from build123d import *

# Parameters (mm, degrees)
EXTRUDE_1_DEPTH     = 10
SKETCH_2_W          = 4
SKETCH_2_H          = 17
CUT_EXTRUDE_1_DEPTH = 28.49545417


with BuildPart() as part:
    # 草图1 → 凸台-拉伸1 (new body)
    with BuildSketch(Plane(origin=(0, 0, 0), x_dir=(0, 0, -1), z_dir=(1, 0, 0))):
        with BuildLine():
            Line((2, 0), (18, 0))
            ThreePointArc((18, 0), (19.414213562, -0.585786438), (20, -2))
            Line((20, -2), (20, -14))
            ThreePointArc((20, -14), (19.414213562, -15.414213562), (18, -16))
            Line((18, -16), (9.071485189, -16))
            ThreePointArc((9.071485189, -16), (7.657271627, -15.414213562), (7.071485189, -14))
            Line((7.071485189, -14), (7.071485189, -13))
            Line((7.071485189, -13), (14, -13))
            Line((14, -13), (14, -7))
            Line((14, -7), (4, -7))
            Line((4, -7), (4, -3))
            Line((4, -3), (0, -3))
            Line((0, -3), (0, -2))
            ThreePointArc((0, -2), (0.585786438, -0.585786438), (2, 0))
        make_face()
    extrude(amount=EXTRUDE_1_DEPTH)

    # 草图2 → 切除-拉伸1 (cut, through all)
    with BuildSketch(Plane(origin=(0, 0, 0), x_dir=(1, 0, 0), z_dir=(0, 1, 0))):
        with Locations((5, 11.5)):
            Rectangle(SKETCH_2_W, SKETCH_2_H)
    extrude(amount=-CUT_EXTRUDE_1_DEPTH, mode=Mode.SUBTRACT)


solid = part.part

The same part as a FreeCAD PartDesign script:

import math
import FreeCAD as App
import Part
import Sketcher
from FreeCAD import Vector
Q = App.Units.Quantity

doc = App.newDocument("Part")
params = doc.addObject("Spreadsheet::Sheet", "Params")
for row, (alias, value) in enumerate([
    ("sketch1_radius", "2 mm"),
    ("sketch1_width", "1 mm"),
    ("sketch1_width2", "4 mm"),
    ("sketch1_width3", "6 mm"),
    ("sketch1_height", "16 mm"),
    ("pad1_length", "10 mm"),
    ("sketch2_width", "4 mm"),
    ("sketch2_height", "17 mm"),
], start=1):
    params.set(f"A{row}", alias)
    params.set(f"B{row}", "=" + value)
    params.setAlias(f"B{row}", alias)

body = doc.addObject("PartDesign::Body", "Body")

# Sketch on YZ plane
sketch1 = doc.addObject("Sketcher::SketchObject", "Sketch")
body.addObject(sketch1)
sketch1.AttachmentSupport = (doc.YZ_Plane, [""])
sketch1.MapMode = "FlatFace"
sketch1.addGeometry(Part.LineSegment(Vector(0, -18, 0), Vector(0, -2, 0)), False)
sketch1.addGeometry(Part.ArcOfCircle(Part.Circle(Vector(-2, -2, 0), Vector(0, 0, 1), 2), math.radians(0), math.radians(90)), False)
sketch1.addGeometry(Part.LineSegment(Vector(-2, 0, 0), Vector(-3, 0, 0)), False)
sketch1.addGeometry(Part.LineSegment(Vector(-3, 0, 0), Vector(-3, -4, 0)), False)
sketch1.addGeometry(Part.LineSegment(Vector(-3, -4, 0), Vector(-7, -4, 0)), False)
sketch1.addGeometry(Part.LineSegment(Vector(-7, -4, 0), Vector(-7, -14, 0)), False)
sketch1.addGeometry(Part.LineSegment(Vector(-7, -14, 0), Vector(-13, -14, 0)), False)
sketch1.addGeometry(Part.LineSegment(Vector(-13, -14, 0), Vector(-13, -7.071485, 0)), False)
sketch1.addGeometry(Part.LineSegment(Vector(-13, -7.071485, 0), Vector(-14, -7.071485, 0)), False)
sketch1.addGeometry(Part.ArcOfCircle(Part.Circle(Vector(-14, -9.071485, 0), Vector(0, 0, 1), 2), math.radians(90), math.radians(180)), False)
sketch1.addGeometry(Part.LineSegment(Vector(-16, -9.071485, 0), Vector(-16, -18, 0)), False)
sketch1.addGeometry(Part.ArcOfCircle(Part.Circle(Vector(-14, -18, 0), Vector(0, 0, 1), 2), math.radians(-180), math.radians(-90)), False)
sketch1.addGeometry(Part.LineSegment(Vector(-14, -20, 0), Vector(-2, -20, 0)), False)
sketch1.addGeometry(Part.ArcOfCircle(Part.Circle(Vector(-2, -18, 0), Vector(0, 0, 1), 2), math.radians(-90), math.radians(0)), False)
sketch1.addConstraint(Sketcher.Constraint("Tangent", 0, 2, 1, 1))
sketch1.addConstraint(Sketcher.Constraint("Tangent", 1, 2, 2, 1))
sketch1.addConstraint(Sketcher.Constraint("Coincident", 2, 2, 3, 1))
sketch1.addConstraint(Sketcher.Constraint("Coincident", 3, 2, 4, 1))
sketch1.addConstraint(Sketcher.Constraint("Coincident", 4, 2, 5, 1))
sketch1.addConstraint(Sketcher.Constraint("Coincident", 5, 2, 6, 1))
sketch1.addConstraint(Sketcher.Constraint("Coincident", 6, 2, 7, 1))
sketch1.addConstraint(Sketcher.Constraint("Coincident", 7, 2, 8, 1))
sketch1.addConstraint(Sketcher.Constraint("Tangent", 8, 2, 9, 1))
sketch1.addConstraint(Sketcher.Constraint("Tangent", 9, 2, 10, 1))
sketch1.addConstraint(Sketcher.Constraint("Tangent", 10, 2, 11, 1))
sketch1.addConstraint(Sketcher.Constraint("Tangent", 11, 2, 12, 1))
sketch1.addConstraint(Sketcher.Constraint("Tangent", 12, 2, 13, 1))
sketch1.addConstraint(Sketcher.Constraint("Tangent", 13, 2, 0, 1))
sketch1.addConstraint(Sketcher.Constraint("Vertical", 0))
sketch1.addConstraint(Sketcher.Constraint("Horizontal", 2))
sketch1.addConstraint(Sketcher.Constraint("Vertical", 3))
sketch1.addConstraint(Sketcher.Constraint("Horizontal", 4))
sketch1.addConstraint(Sketcher.Constraint("Vertical", 5))
sketch1.addConstraint(Sketcher.Constraint("Horizontal", 6))
sketch1.addConstraint(Sketcher.Constraint("Vertical", 7))
sketch1.addConstraint(Sketcher.Constraint("Horizontal", 8))
sketch1.addConstraint(Sketcher.Constraint("Vertical", 10))
sketch1.addConstraint(Sketcher.Constraint("Horizontal", 12))
sketch1.addConstraint(Sketcher.Constraint("Equal", 1, 9))
sketch1.addConstraint(Sketcher.Constraint("Equal", 9, 11))
sketch1.addConstraint(Sketcher.Constraint("Equal", 11, 13))
sketch1.addConstraint(Sketcher.Constraint("PointOnObject", 0, 2, -2))
sketch1.addConstraint(Sketcher.Constraint("PointOnObject", 1, 2, -1))
sketch1.addConstraint(Sketcher.Constraint("Equal", 2, 8))
sketch1.addConstraint(Sketcher.Constraint("Equal", 4, 3))
sketch1.addConstraint(Sketcher.Constraint("Radius", 1, Q("2 mm")))
sketch1.addConstraint(Sketcher.Constraint("DistanceX", 2, 2, 2, 1, Q("1 mm")))
sketch1.addConstraint(Sketcher.Constraint("DistanceX", 4, 2, 4, 1, Q("4 mm")))
sketch1.addConstraint(Sketcher.Constraint("DistanceX", 6, 2, 6, 1, Q("6 mm")))
sketch1.addConstraint(Sketcher.Constraint("DistanceY", 0, 1, 0, 2, Q("16 mm")))
sketch1.addConstraint(Sketcher.Constraint("DistanceY", 5, 2, 5, 1, Q("10 mm")))
sketch1.addConstraint(Sketcher.Constraint("DistanceY", 7, 1, 7, 2, Q("6.928515 mm")))
sketch1.setExpression("Constraints[31]", "Params.sketch1_radius")
sketch1.setExpression("Constraints[32]", "Params.sketch1_width")
sketch1.setExpression("Constraints[33]", "Params.sketch1_width2")
sketch1.setExpression("Constraints[34]", "Params.sketch1_width3")
sketch1.setExpression("Constraints[35]", "Params.sketch1_height")
pad1 = doc.addObject("PartDesign::Pad", "Pad")
body.addObject(pad1)
pad1.Profile = sketch1
pad1.setExpression("Length", "Params.pad1_length")

# Sketch on XZ plane
sketch2 = doc.addObject("Sketcher::SketchObject", "Sketch001")
body.addObject(sketch2)
sketch2.AttachmentSupport = (doc.XZ_Plane, [""])
sketch2.MapMode = "FlatFace"
sketch2.addGeometry(Part.LineSegment(Vector(3, -20, 0), Vector(3, -3, 0)), False)
sketch2.addGeometry(Part.LineSegment(Vector(3, -3, 0), Vector(7, -3, 0)), False)
sketch2.addGeometry(Part.LineSegment(Vector(7, -3, 0), Vector(7, -20, 0)), False)
sketch2.addGeometry(Part.LineSegment(Vector(7, -20, 0), Vector(3, -20, 0)), False)
sketch2.addConstraint(Sketcher.Constraint("Coincident", 0, 2, 1, 1))
sketch2.addConstraint(Sketcher.Constraint("Coincident", 1, 2, 2, 1))
sketch2.addConstraint(Sketcher.Constraint("Coincident", 2, 2, 3, 1))
sketch2.addConstraint(Sketcher.Constraint("Coincident", 3, 2, 0, 1))
sketch2.addConstraint(Sketcher.Constraint("Vertical", 0))
sketch2.addConstraint(Sketcher.Constraint("Horizontal", 1))
sketch2.addConstraint(Sketcher.Constraint("Vertical", 2))
sketch2.addConstraint(Sketcher.Constraint("Horizontal", 3))
sketch2.addConstraint(Sketcher.Constraint("DistanceX", 1, 1, 1, 2, Q("4 mm")))
sketch2.addConstraint(Sketcher.Constraint("DistanceY", 0, 1, 0, 2, Q("17 mm")))
sketch2.addConstraint(Sketcher.Constraint("DistanceX", -1, 1, 0, 2, Q("3 mm")))
sketch2.addConstraint(Sketcher.Constraint("DistanceY", 0, 2, -1, 1, Q("3 mm")))
sketch2.setExpression("Constraints[8]", "Params.sketch2_width")
sketch2.setExpression("Constraints[9]", "Params.sketch2_height")
pocket1 = doc.addObject("PartDesign::Pocket", "Pocket")
body.addObject(pocket1)
pocket1.Profile = sketch2
pocket1.Type = "ThroughAll"
pocket1.Reversed = True

doc.recompute()
